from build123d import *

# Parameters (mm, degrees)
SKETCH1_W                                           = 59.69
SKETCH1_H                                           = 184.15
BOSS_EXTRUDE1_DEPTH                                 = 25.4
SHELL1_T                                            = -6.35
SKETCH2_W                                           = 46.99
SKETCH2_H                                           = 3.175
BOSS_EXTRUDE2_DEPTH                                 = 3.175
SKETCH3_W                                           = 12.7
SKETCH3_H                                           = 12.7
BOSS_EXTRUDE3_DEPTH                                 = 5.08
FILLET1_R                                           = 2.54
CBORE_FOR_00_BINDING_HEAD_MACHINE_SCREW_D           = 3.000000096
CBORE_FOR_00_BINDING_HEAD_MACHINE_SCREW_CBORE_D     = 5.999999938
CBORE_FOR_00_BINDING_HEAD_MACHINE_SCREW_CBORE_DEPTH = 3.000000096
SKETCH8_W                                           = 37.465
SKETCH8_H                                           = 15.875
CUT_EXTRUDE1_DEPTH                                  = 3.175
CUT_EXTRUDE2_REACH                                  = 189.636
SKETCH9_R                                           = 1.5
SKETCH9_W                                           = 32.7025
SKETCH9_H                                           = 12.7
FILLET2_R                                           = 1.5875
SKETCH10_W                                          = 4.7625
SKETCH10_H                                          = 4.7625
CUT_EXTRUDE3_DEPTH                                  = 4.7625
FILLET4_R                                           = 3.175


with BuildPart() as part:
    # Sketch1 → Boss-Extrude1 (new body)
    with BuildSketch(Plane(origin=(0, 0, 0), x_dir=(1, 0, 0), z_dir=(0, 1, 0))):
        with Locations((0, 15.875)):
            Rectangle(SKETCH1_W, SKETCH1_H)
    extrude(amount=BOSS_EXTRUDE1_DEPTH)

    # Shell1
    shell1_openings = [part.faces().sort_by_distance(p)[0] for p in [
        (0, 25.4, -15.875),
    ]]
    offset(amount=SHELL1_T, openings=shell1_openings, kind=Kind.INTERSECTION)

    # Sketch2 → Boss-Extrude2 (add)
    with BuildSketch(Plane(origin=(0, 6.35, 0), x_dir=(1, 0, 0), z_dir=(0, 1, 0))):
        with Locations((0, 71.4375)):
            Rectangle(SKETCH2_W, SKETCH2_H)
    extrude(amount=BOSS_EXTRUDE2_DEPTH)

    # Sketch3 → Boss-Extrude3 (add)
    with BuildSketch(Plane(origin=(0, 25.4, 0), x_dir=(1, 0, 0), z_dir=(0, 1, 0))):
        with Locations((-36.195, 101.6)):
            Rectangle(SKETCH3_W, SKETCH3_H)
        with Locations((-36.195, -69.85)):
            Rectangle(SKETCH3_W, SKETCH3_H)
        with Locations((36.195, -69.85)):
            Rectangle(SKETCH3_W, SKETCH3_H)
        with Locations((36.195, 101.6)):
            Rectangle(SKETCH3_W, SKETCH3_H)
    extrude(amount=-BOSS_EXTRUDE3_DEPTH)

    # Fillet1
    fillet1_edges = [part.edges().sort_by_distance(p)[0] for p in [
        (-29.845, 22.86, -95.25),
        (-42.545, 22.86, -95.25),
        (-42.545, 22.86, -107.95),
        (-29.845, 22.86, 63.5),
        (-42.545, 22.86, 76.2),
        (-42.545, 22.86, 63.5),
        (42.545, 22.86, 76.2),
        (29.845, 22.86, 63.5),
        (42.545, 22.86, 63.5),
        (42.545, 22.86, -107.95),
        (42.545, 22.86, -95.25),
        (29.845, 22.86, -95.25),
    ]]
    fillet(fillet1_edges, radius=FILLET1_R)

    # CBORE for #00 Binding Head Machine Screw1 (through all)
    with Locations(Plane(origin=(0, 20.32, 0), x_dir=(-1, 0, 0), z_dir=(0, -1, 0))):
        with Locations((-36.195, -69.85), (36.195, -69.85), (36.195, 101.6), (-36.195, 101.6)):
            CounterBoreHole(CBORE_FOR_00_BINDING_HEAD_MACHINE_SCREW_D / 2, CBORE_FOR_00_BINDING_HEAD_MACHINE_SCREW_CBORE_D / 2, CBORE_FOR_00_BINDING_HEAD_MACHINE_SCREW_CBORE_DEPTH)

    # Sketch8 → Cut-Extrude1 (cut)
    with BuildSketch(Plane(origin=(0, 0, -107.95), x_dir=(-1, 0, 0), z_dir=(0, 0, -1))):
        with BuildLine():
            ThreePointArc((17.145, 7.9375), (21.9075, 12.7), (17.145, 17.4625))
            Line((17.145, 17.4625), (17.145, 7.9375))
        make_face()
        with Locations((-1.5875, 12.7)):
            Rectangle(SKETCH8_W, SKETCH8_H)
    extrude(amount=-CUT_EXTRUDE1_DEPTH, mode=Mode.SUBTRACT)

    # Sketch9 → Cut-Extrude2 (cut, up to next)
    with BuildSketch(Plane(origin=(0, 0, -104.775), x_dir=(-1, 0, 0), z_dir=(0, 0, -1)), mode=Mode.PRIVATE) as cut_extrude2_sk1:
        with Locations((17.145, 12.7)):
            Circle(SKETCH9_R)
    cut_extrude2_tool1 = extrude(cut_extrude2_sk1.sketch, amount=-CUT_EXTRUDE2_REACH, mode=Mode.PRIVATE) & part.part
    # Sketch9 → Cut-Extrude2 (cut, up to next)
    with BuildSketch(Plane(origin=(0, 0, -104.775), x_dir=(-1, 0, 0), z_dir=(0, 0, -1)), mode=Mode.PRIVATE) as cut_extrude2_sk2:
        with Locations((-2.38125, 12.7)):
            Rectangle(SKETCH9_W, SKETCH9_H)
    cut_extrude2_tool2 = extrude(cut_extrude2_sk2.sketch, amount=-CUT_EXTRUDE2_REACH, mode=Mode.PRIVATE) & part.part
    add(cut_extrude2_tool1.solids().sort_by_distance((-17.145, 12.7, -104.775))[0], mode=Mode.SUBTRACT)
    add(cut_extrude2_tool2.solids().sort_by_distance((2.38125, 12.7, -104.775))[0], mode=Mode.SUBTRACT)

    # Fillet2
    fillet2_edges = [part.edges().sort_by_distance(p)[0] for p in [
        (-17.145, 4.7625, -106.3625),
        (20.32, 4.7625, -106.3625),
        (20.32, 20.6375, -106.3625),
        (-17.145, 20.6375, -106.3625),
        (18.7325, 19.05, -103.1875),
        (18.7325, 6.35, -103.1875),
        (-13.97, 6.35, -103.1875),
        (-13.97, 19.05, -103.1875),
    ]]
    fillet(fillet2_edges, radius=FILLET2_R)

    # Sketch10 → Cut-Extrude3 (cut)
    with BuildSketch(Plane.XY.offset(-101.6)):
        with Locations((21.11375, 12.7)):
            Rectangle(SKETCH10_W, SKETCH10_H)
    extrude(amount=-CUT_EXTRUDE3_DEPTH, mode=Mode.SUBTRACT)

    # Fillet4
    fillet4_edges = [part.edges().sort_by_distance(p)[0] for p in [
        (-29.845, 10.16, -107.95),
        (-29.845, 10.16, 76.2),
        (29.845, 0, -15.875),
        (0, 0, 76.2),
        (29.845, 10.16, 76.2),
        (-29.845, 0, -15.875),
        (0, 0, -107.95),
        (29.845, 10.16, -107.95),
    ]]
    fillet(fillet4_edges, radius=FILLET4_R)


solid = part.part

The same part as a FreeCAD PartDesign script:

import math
import FreeCAD as App
import Part
import Sketcher
from FreeCAD import Vector
Q = App.Units.Quantity


def edges_at(feature, points):
    """Names of the edges that pass closest to the given points."""
    edges = feature.Shape.Edges
    near = lambda p: min(range(len(edges)), key=lambda i: edges[i].distToShape(Part.Vertex(*p))[0])
    return sorted({f"Edge{near(p) + 1}" for p in points})


def faces_at(feature, points):
    """Names of the faces that lie closest to the given points."""
    faces = feature.Shape.Faces
    near = lambda p: min(range(len(faces)), key=lambda i: faces[i].distToShape(Part.Vertex(*p))[0])
    return sorted({f"Face{near(p) + 1}" for p in points})


def add_polygon(sketch, points):
    """Adds a closed chain of lines whose ends are joined by coincident constraints."""
    first, n = sketch.GeometryCount, len(points)
    for a, b in zip(points, points[1:] + points[:1]):
        sketch.addGeometry(Part.LineSegment(App.Vector(*a, 0), App.Vector(*b, 0)), False)
    for i in range(n):
        sketch.addConstraint(Sketcher.Constraint("Coincident", first + i, 2, first + (i + 1) % n, 1))

doc = App.newDocument("Part")
body = doc.addObject("PartDesign::Body", "Body")

# Sketch on XZ plane
sketch1 = body.newObject("Sketcher::SketchObject", "Sketch")
sketch1.AttachmentSupport = (doc.getObject("XZ_Plane"), [""])
sketch1.MapMode = "FlatFace"
add_polygon(sketch1, [(-30, -108), (-30, 76), (30, 76), (30, -108)])  # lines 0-3
sketch1.addConstraint([
    Sketcher.Constraint("Vertical", 0),
    Sketcher.Constraint("Horizontal", 1),
    Sketcher.Constraint("Vertical", 2),
    Sketcher.Constraint("Horizontal", 3),
    Sketcher.Constraint("DistanceY", -1, 1, 0, 2, Q("3 in")),
    Sketcher.Constraint("DistanceX", 1, 1, 1, 2, Q("2.35 in")),
    Sketcher.Constraint("DistanceY", 0, 1, 0, 2, Q("7.25 in")),
    Sketcher.Constraint("DistanceX", 0, 2, -1, 1, Q("1.175 in")),
])
pad1 = body.newObject("PartDesign::Pad", "Pad")
pad1.Profile = sketch1
pad1.Length = Q("1 in")
pad1.Reversed = True
doc.recompute()

thickness = body.newObject("PartDesign::Thickness", "Thickness")
thickness.Base = (pad1, faces_at(pad1, [(0, 25.4, -15.875)]))
thickness.Value = Q("0.25 in")
thickness.Reversed = True
thickness.Join = "Intersection"

# Sketch on XZ plane
sketch2 = body.newObject("Sketcher::SketchObject", "Sketch001")
sketch2.AttachmentSupport = (doc.getObject("XZ_Plane"), [""])
sketch2.MapMode = "FlatFace"
sketch2.AttachmentOffset = App.Placement(Vector(0, 0, -0.25 * 25.4), App.Rotation())
add_polygon(sketch2, [(-23.5, -73), (-23.5, -69.8), (23.5, -69.8), (23.5, -73)])  # lines 0-3
sketch2.addConstraint([
    Sketcher.Constraint("Vertical", 0),
    Sketcher.Constraint("Horizontal", 1),
    Sketcher.Constraint("Vertical", 2),
    Sketcher.Constraint("Horizontal", 3),
    Sketcher.Constraint("DistanceX", 1, 1, 1, 2, Q("1.85 in")),
    Sketcher.Constraint("DistanceY", 0, 1, 0, 2, Q("0.125 in")),
    Sketcher.Constraint("DistanceY", 0, 2, -1, 1, Q("2.75 in")),
    Sketcher.Constraint("DistanceX", 0, 2, -1, 1, Q("0.925 in")),
])
pad2 = body.newObject("PartDesign::Pad", "Pad001")
pad2.Profile = sketch2
pad2.Length = Q("0.125 in")
pad2.Reversed = True

# Sketch on XZ plane
sketch3 = body.newObject("Sketcher::SketchObject", "Sketch002")
sketch3.AttachmentSupport = (doc.getObject("XZ_Plane"), [""])
sketch3.MapMode = "FlatFace"
sketch3.AttachmentOffset = App.Placement(Vector(0, 0, -1 * 25.4), App.Rotation())
add_polygon(sketch3, [(-43, -108), (-43, -95), (-30, -95), (-30, -108)])  # lines 0-3
add_polygon(sketch3, [(-43, 64), (-43, 76), (-30, 76), (-30, 64)])  # lines 4-7
add_polygon(sketch3, [(30, 64), (30, 76), (43, 76), (43, 64)])  # lines 8-11
add_polygon(sketch3, [(30, -108), (30, -95), (43, -95), (43, -108)])  # lines 12-15
sketch3.addConstraint([
    Sketcher.Constraint("Vertical", 0),
    Sketcher.Constraint("Horizontal", 1),
    Sketcher.Constraint("Vertical", 2),
    Sketcher.Constraint("Horizontal", 3),
    Sketcher.Constraint("Vertical", 4),
    Sketcher.Constraint("Horizontal", 5),
    Sketcher.Constraint("Vertical", 6),
    Sketcher.Constraint("Horizontal", 7),
    Sketcher.Constraint("Vertical", 8),
    Sketcher.Constraint("Horizontal", 9),
    Sketcher.Constraint("Vertical", 10),
    Sketcher.Constraint("Horizontal", 11),
    Sketcher.Constraint("Vertical", 12),
    Sketcher.Constraint("Horizontal", 13),
    Sketcher.Constraint("Vertical", 14),
    Sketcher.Constraint("Horizontal", 15),
    Sketcher.Constraint("Symmetric", 5, 2, 8, 2, -2),
    Sketcher.Constraint("Symmetric", 7, 2, 10, 2, -2),
    Sketcher.Constraint("Symmetric", 1, 2, 12, 2, -2),
    Sketcher.Constraint("Symmetric", 3, 2, 14, 2, -2),
    Sketcher.Constraint("Vertical", 3, 2, 4, 2),
    Sketcher.Constraint("Vertical", 2, 2, 5, 2),
    Sketcher.Constraint("Equal", 15, 0),
    Sketcher.Constraint("Equal", 2, 4),
    Sketcher.Constraint("DistanceX", 1, 1, 1, 2, Q("0.5 in")),
    Sketcher.Constraint("DistanceY", -1, 1, 4, 2, Q("3 in")),
    Sketcher.Constraint("DistanceY", 0, 2, -1, 1, Q("3.75 in")),
    Sketcher.Constraint("DistanceX", 5, 2, 8, 2, Q("2.35 in")),
])
pad3 = body.newObject("PartDesign::Pad", "Pad002")
pad3.Profile = sketch3
pad3.Length = Q("0.2 in")
doc.recompute()

fillet = body.newObject("PartDesign::Fillet", "Fillet")
fillet.Base = (pad3, edges_at(pad3, [
    (-29.845, 22.86, -95.25),
    (-42.545, 22.86, -95.25),
    (-42.545, 22.86, -107.95),
    (-29.845, 22.86, 63.5),
    (-42.545, 22.86, 76.2),
    (-42.545, 22.86, 63.5),
    (42.545, 22.86, 76.2),
    (29.845, 22.86, 63.5),
    (42.545, 22.86, 63.5),
    (42.545, 22.86, -107.95),
    (42.545, 22.86, -95.25),
    (29.845, 22.86, -95.25),
]))
fillet.Radius = Q("0.1 in")

# Sketch on XZ plane
sketch4 = body.newObject("Sketcher::SketchObject", "Sketch003")
sketch4.AttachmentSupport = (doc.getObject("XZ_Plane"), [""])
sketch4.MapMode = "FlatFace"
sketch4.AttachmentOffset = App.Placement(Vector(0, 0, -0.8 * 25.4), App.Rotation())
sketch4.addGeometry([
    Part.Circle(Vector(36.2, 69.8, 0), Vector(0, 0, 1), 1.5),
    Part.Circle(Vector(-36.2, 69.8, 0), Vector(0, 0, 1), 1.5),
    Part.Circle(Vector(-36.2, -101.6, 0), Vector(0, 0, 1), 1.5),
    Part.Circle(Vector(36.2, -101.6, 0), Vector(0, 0, 1), 1.5),
], False)
sketch4.addConstraint([
    Sketcher.Constraint("Equal", 0, 1),
    Sketcher.Constraint("Equal", 1, 2),
    Sketcher.Constraint("Equal", 2, 3),
    Sketcher.Constraint("Symmetric", 0, 3, 1, 3, -2),
    Sketcher.Constraint("Symmetric", 2, 3, 3, 3, -2),
    Sketcher.Constraint("Vertical", 1, 3, 2, 3),
    Sketcher.Constraint("DistanceY", 2, 3, -1, 1, Q("4 in")),
    Sketcher.Constraint("Diameter", 0, 3.0),
    Sketcher.Constraint("DistanceY", -1, 1, 0, 3, Q("2.75 in")),
    Sketcher.Constraint("DistanceX", 1, 3, 0, 3, Q("2.85 in")),
])
doc.recompute()
hole = body.newObject("PartDesign::Hole", "Hole")
hole.Profile = sketch4
hole.ThreadType = "None"
hole.Diameter = 3
hole.DepthType = "ThroughAll"
hole.HoleCutType = "Counterbore"
hole.HoleCutDiameter = 6
hole.HoleCutDepth = 3

# Sketch on XY plane
sketch5 = body.newObject("Sketcher::SketchObject", "Sketch004")
sketch5.AttachmentSupport = (doc.getObject("XY_Plane"), [""])
sketch5.MapMode = "FlatFace"
sketch5.AttachmentOffset = App.Placement(Vector(0, 0, -4.25 * 25.4), App.Rotation())
sketch5.addGeometry([
    Part.ArcOfCircle(Part.Circle(Vector(-17.1, 12.7, 0), Vector(0, 0, 1), 4.8), math.radians(90), math.radians(270)),  # 0
    Part.LineSegment(Vector(-17.1, 17.5, 0), Vector(-17.1, 20.6, 0)),  # 1
    Part.LineSegment(Vector(-17.1, 20.6, 0), Vector(20.3, 20.6, 0)),  # 2
    Part.LineSegment(Vector(20.3, 20.6, 0), Vector(20.3, 4.8, 0)),  # 3
    Part.LineSegment(Vector(20.3, 4.8, 0), Vector(-17.1, 4.8, 0)),  # 4
    Part.LineSegment(Vector(-17.1, 4.8, 0), Vector(-17.1, 7.9, 0)),  # 5
], False)
sketch5.addConstraint([
    Sketcher.Constraint("Coincident", 0, 1, 1, 1),
    Sketcher.Constraint("Coincident", 1, 2, 2, 1),
    Sketcher.Constraint("Coincident", 2, 2, 3, 1),
    Sketcher.Constraint("Coincident", 3, 2, 4, 1),
    Sketcher.Constraint("Coincident", 4, 2, 5, 1),
    Sketcher.Constraint("Coincident", 5, 2, 0, 2),
    Sketcher.Constraint("Vertical", 1),
    Sketcher.Constraint("Horizontal", 2),
    Sketcher.Constraint("Vertical", 3),
    Sketcher.Constraint("Horizontal", 4),
    Sketcher.Constraint("Vertical", 5),
    Sketcher.Constraint("Vertical", 1, 2, 4, 2),
    Sketcher.Constraint("Equal", 1, 5),
    Sketcher.Constraint("Radius", 0, Q("0.1875 in")),
    Sketcher.Constraint("DistanceY", -1, 1, 0, 3, Q("0.5 in")),
    Sketcher.Constraint("DistanceX", -1, 1, 2, 2, Q("0.8 in")),
    Sketcher.Constraint("DistanceY", 3, 2, 0, 1, Q("0.5 in")),
    Sketcher.Constraint("DistanceX", 2, 1, 2, 2, Q("1.475 in")),
    Sketcher.Constraint("DistanceX", 0, 3, -1, 1, Q("0.675 in")),
])
pocket1 = body.newObject("PartDesign::Pocket", "Pocket")
pocket1.Profile = sketch5
pocket1.Length = Q("0.125 in")
pocket1.Reversed = True

# Sketch on XY plane
sketch6 = body.newObject("Sketcher::SketchObject", "Sketch005")
sketch6.AttachmentSupport = (doc.getObject("XY_Plane"), [""])
sketch6.MapMode = "FlatFace"
sketch6.AttachmentOffset = App.Placement(Vector(0, 0, -4.125 * 25.4), App.Rotation())
sketch6.addGeometry(Part.Circle(Vector(-17.1, 12.7, 0), Vector(0, 0, 1), 1.5), False)
sketch6.addConstraint([
    Sketcher.Constraint("DistanceY", -1, 1, 0, 3, Q("0.5 in")),
    Sketcher.Constraint("Diameter", 0, 3.0),
    Sketcher.Constraint("DistanceX", 0, 3, -1, 1, Q("0.675 in")),
])
pocket2 = body.newObject("PartDesign::Pocket", "Pocket001")
pocket2.Profile = sketch6
pocket2.Type = "UpToFirst"
pocket2.Reversed = True

# Sketch on XY plane
sketch7 = body.newObject("Sketcher::SketchObject", "Sketch006")
sketch7.AttachmentSupport = (doc.getObject("XY_Plane"), [""])
sketch7.MapMode = "FlatFace"
sketch7.AttachmentOffset = App.Placement(Vector(0, 0, -4.125 * 25.4), App.Rotation())
add_polygon(sketch7, [(19, 19), (19, 6), (-14, 6), (-14, 19)])  # lines 0-3
sketch7.addConstraint([
    Sketcher.Constraint("Vertical", 0),
    Sketcher.Constraint("Horizontal", 1),
    Sketcher.Constraint("Vertical", 2),
    Sketcher.Constraint("Horizontal", 3),
    Sketcher.Constraint("DistanceY", 0, 2, 0, 1, Q("0.5 in")),
    Sketcher.Constraint("DistanceY", -1, 1, 0, 2, Q("0.25 in")),
    Sketcher.Constraint("DistanceX", 1, 2, -1, 1, Q("0.55 in")),
    Sketcher.Constraint("DistanceX", 1, 2, 1, 1, Q("1.2875 in")),
])
pocket3 = body.newObject("PartDesign::Pocket", "Pocket002")
pocket3.Profile = sketch7
pocket3.Type = "UpToFirst"
pocket3.Reversed = True
doc.recompute()

fillet2 = body.newObject("PartDesign::Fillet", "Fillet001")
fillet2.Base = (pocket3, edges_at(pocket3, [
    (-17.145, 4.763, -106.362),
    (20.32, 4.763, -106.362),
    (20.32, 20.637, -106.362),
    (-17.145, 20.637, -106.362),
    (18.733, 19.05, -103.188),
    (18.733, 6.35, -103.188),
    (-13.97, 6.35, -103.188),
    (-13.97, 19.05, -103.188),
]))
fillet2.Radius = Q("0.0625 in")

# Sketch on XY plane
sketch8 = body.newObject("Sketcher::SketchObject", "Sketch007")
sketch8.AttachmentSupport = (doc.getObject("XY_Plane"), [""])
sketch8.MapMode = "FlatFace"
sketch8.AttachmentOffset = App.Placement(Vector(0, 0, -4 * 25.4), App.Rotation())
add_polygon(sketch8, [(18.7, 15.1), (18.7, 10.3), (23.5, 10.3), (23.5, 15.1)])  # lines 0-3
sketch8.addConstraint([
    Sketcher.Constraint("Vertical", 0),
    Sketcher.Constraint("Horizontal", 1),
    Sketcher.Constraint("Vertical", 2),
    Sketcher.Constraint("Horizontal", 3),
    Sketcher.Constraint("Equal", 3, 0),
    Sketcher.Constraint("DistanceX", 1, 1, 1, 2, Q("0.1875 in")),
    Sketcher.Constraint("DistanceY", -1, 1, 0, 2, Q("0.40625 in")),
    Sketcher.Constraint("DistanceX", -1, 1, 1, 2, Q("0.925 in")),
])
pocket4 = body.newObject("PartDesign::Pocket", "Pocket003")
pocket4.Profile = sketch8
pocket4.Length = Q("0.1875 in")
doc.recompute()

fillet3 = body.newObject("PartDesign::Fillet", "Fillet002")
fillet3.Base = (pocket4, edges_at(pocket4, [
    (-29.845, 10.16, -107.95),
    (-29.845, 10.16, 76.2),
    (29.845, 0, -15.875),
    (0, 0, 76.2),
    (29.845, 10.16, 76.2),
    (-29.845, 0, -15.875),
    (0, 0, -107.95),
    (29.845, 10.16, -107.95),
]))
fillet3.Radius = Q("0.125 in")

doc.recompute()
